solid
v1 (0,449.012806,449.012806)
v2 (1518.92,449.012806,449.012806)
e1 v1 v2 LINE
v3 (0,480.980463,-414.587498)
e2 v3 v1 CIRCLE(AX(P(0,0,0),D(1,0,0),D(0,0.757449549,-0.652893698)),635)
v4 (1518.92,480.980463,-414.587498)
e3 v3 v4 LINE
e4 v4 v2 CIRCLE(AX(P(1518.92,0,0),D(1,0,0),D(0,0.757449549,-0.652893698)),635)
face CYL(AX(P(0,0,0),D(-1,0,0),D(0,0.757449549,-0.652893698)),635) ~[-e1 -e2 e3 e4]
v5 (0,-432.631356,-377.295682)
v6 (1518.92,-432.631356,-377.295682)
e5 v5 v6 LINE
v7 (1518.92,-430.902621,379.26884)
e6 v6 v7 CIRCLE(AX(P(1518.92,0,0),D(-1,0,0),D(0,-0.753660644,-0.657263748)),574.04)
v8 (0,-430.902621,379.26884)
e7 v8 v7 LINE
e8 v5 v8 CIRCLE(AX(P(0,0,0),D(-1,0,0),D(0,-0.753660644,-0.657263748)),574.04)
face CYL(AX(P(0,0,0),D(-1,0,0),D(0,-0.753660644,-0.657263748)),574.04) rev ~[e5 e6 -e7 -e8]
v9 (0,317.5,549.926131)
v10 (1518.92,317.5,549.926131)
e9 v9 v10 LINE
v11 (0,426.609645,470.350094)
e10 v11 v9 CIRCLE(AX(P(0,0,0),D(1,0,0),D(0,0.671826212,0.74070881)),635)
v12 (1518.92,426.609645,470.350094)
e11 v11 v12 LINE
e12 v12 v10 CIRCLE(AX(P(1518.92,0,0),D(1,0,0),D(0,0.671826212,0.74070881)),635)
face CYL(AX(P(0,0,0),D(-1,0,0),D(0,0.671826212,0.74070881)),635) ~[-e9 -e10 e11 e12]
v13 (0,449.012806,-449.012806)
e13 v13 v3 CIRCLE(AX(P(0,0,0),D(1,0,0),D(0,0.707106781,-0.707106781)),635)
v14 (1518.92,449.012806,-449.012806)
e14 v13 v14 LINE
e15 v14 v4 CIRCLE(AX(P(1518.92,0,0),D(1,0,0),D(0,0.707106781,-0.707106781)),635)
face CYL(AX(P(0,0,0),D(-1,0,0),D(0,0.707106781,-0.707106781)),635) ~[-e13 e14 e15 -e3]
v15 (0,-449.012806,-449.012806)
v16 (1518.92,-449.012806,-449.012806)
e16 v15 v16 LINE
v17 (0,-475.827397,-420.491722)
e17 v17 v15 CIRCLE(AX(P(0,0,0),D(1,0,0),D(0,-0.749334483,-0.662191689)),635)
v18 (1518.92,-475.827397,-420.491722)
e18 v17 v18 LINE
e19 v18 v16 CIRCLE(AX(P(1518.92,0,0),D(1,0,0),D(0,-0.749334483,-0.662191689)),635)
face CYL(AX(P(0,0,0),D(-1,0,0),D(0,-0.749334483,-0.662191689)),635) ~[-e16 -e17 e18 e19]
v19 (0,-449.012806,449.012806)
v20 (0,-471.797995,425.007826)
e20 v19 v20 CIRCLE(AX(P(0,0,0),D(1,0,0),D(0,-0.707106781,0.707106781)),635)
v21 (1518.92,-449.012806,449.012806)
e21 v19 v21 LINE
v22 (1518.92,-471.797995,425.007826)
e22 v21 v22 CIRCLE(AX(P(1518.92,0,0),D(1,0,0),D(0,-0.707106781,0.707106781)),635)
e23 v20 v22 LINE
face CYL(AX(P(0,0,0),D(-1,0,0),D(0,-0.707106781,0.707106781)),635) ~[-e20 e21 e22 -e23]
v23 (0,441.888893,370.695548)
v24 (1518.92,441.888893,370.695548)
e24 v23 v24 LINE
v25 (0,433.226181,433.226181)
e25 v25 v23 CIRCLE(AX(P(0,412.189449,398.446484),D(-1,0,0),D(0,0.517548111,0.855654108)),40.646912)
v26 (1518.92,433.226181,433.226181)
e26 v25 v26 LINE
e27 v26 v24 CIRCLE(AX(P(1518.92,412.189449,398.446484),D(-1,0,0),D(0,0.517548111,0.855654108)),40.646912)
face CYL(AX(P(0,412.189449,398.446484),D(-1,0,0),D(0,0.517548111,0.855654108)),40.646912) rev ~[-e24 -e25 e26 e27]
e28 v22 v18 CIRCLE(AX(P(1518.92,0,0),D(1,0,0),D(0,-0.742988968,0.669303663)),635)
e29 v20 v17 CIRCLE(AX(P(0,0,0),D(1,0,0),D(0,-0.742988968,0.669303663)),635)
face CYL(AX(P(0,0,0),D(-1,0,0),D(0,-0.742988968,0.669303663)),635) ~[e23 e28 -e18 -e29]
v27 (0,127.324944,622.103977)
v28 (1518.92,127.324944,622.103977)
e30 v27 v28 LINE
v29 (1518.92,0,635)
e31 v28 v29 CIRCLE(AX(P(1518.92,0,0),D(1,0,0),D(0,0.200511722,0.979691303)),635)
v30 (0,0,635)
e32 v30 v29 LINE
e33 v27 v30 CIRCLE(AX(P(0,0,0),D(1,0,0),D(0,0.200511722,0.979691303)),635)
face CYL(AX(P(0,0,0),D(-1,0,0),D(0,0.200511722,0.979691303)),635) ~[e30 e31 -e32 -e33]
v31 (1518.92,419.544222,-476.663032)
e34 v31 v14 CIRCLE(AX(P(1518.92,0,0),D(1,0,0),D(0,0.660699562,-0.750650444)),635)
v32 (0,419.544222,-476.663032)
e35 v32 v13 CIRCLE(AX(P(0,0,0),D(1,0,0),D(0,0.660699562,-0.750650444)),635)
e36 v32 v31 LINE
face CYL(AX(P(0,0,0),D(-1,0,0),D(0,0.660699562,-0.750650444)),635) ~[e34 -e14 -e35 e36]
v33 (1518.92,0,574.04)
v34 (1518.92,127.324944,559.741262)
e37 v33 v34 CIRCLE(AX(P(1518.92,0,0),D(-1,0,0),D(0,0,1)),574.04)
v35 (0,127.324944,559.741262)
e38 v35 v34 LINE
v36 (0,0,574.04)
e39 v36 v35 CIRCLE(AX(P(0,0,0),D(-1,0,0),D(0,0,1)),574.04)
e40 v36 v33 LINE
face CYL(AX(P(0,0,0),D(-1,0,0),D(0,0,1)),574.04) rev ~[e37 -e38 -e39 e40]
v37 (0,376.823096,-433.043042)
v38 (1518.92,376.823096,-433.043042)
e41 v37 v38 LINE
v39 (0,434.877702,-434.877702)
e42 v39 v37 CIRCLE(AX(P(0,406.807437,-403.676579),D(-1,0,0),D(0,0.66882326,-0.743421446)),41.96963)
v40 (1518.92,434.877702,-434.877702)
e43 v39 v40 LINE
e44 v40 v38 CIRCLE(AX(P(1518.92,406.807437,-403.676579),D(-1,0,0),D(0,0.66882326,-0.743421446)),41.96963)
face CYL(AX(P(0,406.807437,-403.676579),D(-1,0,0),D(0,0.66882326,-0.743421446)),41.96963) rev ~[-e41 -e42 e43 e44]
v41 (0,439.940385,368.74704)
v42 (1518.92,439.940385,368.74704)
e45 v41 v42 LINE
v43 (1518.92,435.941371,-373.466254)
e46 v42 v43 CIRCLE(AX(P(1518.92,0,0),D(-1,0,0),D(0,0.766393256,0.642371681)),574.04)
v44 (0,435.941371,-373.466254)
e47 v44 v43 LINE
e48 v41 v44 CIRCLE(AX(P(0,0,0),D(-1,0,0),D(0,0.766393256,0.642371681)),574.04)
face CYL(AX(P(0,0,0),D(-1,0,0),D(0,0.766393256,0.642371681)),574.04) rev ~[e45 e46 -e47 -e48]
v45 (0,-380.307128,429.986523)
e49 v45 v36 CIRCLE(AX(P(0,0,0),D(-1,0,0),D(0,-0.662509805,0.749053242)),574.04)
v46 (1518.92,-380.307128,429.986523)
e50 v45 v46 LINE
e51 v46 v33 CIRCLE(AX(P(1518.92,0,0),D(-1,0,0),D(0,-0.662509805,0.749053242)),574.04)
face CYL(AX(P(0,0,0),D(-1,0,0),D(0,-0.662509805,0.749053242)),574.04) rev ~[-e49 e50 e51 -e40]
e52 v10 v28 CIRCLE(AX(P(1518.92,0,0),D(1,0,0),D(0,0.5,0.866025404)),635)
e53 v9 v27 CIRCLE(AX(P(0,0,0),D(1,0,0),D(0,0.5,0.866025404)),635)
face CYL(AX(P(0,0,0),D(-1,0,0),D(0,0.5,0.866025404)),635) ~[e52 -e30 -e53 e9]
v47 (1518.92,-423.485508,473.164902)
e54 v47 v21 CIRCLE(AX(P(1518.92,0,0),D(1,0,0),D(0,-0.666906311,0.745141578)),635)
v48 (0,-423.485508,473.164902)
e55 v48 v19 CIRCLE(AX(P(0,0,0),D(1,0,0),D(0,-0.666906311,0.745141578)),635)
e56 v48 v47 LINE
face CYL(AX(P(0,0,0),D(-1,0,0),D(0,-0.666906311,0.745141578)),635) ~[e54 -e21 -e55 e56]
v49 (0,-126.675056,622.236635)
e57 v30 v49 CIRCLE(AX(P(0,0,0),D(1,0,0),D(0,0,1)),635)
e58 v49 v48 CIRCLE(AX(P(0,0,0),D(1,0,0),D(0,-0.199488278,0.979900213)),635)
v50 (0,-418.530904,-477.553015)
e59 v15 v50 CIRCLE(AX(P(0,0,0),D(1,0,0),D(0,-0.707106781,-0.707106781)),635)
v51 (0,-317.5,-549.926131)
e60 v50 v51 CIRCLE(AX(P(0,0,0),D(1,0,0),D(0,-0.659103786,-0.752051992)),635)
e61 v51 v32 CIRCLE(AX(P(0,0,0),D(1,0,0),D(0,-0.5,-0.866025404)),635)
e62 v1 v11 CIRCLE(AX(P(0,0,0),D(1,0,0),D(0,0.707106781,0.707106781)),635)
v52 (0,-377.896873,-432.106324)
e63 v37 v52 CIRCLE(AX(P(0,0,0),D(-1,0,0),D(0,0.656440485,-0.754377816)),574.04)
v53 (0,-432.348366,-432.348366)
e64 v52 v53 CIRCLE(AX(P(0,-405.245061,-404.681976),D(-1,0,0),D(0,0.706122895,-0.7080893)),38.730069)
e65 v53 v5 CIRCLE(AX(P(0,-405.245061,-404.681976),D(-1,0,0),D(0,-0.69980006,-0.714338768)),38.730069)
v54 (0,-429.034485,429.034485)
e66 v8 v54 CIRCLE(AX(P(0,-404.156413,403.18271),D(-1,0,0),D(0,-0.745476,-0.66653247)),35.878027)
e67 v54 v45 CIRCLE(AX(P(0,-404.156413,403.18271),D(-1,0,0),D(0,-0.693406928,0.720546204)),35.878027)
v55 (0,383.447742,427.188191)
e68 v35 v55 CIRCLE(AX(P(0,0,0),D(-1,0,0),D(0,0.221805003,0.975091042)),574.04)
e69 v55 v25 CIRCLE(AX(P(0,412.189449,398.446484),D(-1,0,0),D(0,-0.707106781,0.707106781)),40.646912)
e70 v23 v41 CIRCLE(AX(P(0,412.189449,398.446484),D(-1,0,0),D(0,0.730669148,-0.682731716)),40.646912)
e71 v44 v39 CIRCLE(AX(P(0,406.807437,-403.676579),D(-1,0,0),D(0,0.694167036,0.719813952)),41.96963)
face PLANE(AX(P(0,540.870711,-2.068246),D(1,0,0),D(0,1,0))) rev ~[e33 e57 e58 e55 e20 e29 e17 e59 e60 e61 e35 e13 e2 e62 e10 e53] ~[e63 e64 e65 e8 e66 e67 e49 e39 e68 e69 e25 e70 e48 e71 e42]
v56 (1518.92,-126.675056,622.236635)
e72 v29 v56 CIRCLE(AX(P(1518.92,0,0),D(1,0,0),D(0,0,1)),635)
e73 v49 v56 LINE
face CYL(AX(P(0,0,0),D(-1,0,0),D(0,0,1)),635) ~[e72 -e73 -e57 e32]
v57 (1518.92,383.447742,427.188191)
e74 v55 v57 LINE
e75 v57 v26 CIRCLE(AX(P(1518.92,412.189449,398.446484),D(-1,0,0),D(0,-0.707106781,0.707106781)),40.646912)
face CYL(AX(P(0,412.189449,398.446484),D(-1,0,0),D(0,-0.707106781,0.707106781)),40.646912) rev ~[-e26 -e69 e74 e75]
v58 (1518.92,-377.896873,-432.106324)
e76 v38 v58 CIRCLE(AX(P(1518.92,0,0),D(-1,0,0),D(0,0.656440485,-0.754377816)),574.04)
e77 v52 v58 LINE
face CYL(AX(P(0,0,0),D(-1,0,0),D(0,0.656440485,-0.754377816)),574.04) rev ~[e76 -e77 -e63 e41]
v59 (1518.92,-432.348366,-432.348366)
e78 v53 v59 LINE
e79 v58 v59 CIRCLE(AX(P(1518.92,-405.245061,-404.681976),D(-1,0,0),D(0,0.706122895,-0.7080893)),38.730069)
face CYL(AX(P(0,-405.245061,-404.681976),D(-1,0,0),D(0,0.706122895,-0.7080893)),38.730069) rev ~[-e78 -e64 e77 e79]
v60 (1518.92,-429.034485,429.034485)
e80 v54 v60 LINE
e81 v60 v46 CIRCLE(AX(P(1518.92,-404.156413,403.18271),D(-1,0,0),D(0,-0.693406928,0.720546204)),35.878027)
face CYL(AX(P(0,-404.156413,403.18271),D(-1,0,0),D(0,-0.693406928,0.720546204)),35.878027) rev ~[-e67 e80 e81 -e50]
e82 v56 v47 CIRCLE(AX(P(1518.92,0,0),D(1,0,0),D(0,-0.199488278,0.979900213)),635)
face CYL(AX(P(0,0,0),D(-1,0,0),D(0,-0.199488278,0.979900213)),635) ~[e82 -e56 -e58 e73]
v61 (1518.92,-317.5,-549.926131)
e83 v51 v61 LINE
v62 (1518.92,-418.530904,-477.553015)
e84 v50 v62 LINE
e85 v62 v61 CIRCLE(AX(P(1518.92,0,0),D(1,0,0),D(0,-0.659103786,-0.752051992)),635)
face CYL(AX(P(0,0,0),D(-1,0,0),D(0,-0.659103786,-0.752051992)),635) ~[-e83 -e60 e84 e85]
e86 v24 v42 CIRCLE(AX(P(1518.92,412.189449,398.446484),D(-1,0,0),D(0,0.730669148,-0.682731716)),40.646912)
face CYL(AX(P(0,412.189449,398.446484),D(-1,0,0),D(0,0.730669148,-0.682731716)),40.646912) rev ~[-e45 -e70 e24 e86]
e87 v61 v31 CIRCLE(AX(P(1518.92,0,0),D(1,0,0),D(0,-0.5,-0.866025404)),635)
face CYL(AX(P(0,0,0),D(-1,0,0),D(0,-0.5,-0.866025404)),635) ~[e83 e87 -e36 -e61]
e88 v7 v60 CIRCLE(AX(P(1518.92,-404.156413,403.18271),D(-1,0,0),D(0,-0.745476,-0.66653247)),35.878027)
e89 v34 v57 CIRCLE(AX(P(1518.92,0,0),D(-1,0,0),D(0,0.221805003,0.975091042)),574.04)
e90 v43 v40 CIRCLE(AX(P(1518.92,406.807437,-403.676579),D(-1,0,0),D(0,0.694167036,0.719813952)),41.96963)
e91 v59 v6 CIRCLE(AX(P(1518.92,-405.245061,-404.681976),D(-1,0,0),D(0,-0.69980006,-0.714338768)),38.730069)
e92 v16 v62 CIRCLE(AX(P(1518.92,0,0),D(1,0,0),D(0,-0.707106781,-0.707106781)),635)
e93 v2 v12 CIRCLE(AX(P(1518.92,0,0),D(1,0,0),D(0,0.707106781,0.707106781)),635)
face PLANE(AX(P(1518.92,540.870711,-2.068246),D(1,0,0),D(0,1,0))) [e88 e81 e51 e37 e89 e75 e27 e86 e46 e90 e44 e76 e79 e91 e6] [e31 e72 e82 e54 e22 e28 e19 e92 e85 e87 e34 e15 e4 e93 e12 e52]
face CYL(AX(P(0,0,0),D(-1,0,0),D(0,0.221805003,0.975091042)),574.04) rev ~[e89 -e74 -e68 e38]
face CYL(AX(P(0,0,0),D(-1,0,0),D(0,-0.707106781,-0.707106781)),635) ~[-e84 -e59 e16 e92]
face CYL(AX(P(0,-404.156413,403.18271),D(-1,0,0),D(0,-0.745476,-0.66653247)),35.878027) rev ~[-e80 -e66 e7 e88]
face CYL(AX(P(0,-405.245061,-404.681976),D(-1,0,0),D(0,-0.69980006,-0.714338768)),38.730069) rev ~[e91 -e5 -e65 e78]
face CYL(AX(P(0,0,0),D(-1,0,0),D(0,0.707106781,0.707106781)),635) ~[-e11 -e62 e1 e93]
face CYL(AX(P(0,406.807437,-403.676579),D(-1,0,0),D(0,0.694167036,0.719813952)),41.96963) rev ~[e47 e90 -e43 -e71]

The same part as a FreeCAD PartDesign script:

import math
import FreeCAD as App
import Part
import Sketcher
Q = App.Units.Quantity

doc = App.newDocument("Part")
body = doc.addObject("PartDesign::Body", "Body")

# Sketch on YZ plane
sketch1 = body.newObject("Sketcher::SketchObject", "Sketch")
sketch1.AttachmentSupport = (doc.getObject("YZ_Plane"), [""])
sketch1.MapMode = "FlatFace"
sketch1.addGeometry(Part.ArcOfCircle(Part.Circle(App.Vector(0, 0, 0), App.Vector(0, 0, 1), 635), math.radians(-41), math.radians(45)), False)
sketch1.addGeometry(Part.ArcOfCircle(Part.Circle(App.Vector(0, 0, 0), App.Vector(0, 0, 1), 635), math.radians(45), math.radians(47.79)), False)
sketch1.addGeometry(Part.ArcOfCircle(Part.Circle(App.Vector(0, 0, 0), App.Vector(0, 0, 1), 635), math.radians(47.79), math.radians(60)), False)
sketch1.addGeometry(Part.ArcOfCircle(Part.Circle(App.Vector(0, 0, 0), App.Vector(0, 0, 1), 635), math.radians(60), math.radians(78.43)), False)
sketch1.addGeometry(Part.ArcOfCircle(Part.Circle(App.Vector(0, 0, 0), App.Vector(0, 0, 1), 635), math.radians(78.43), math.radians(90)), False)
sketch1.addGeometry(Part.ArcOfCircle(Part.Circle(App.Vector(0, 0, 0), App.Vector(0, 0, 1), 635), math.radians(90), math.radians(101.51)), False)
sketch1.addGeometry(Part.ArcOfCircle(Part.Circle(App.Vector(0, 0, 0), App.Vector(0, 0, 1), 635), math.radians(102), math.radians(132)), False)
sketch1.addGeometry(Part.ArcOfCircle(Part.Circle(App.Vector(0, 0, 0), App.Vector(0, 0, 1), 635), math.radians(131.83), math.radians(135)), False)
sketch1.addGeometry(Part.ArcOfCircle(Part.Circle(App.Vector(0, 0, 0), App.Vector(0, 0, 1), 635), math.radians(135), math.radians(137.99)), False)
sketch1.addGeometry(Part.ArcOfCircle(Part.Circle(App.Vector(0, 0, 0), App.Vector(0, 0, 1), 635), math.radians(138), math.radians(221)), False)
sketch1.addGeometry(Part.ArcOfCircle(Part.Circle(App.Vector(0, 0, 0), App.Vector(0, 0, 1), 635), math.radians(-138.53), math.radians(-135)), False)
sketch1.addGeometry(Part.ArcOfCircle(Part.Circle(App.Vector(0, 0, 0), App.Vector(0, 0, 1), 635), math.radians(-135), math.radians(-131.23)), False)
sketch1.addGeometry(Part.ArcOfCircle(Part.Circle(App.Vector(0, 0, 0), App.Vector(0, 0, 1), 635), math.radians(-131.23), math.radians(-120)), False)
sketch1.addGeometry(Part.ArcOfCircle(Part.Circle(App.Vector(0, 0, 0), App.Vector(0, 0, 1), 635), math.radians(-120), math.radians(-49)), False)
sketch1.addGeometry(Part.ArcOfCircle(Part.Circle(App.Vector(0, 0, 0), App.Vector(0, 0, 1), 635), math.radians(-48.65), math.radians(-45)), False)
sketch1.addGeometry(Part.ArcOfCircle(Part.Circle(App.Vector(0, 0, 0), App.Vector(0, 0, 1), 635), math.radians(-45), math.radians(-40.76)), False)
sketch1.addGeometry(Part.ArcOfCircle(Part.Circle(App.Vector(-404.2, 403.2, 0), App.Vector(0, 0, 1), 35.9), math.radians(48), math.radians(134)), False)
sketch1.addGeometry(Part.ArcOfCircle(Part.Circle(App.Vector(0, 0, 0), App.Vector(0, 0, 1), 574), math.radians(90), math.radians(131)), False)
sketch1.addGeometry(Part.ArcOfCircle(Part.Circle(App.Vector(0, 0, 0), App.Vector(0, 0, 1), 574), math.radians(77.18), math.radians(90)), False)
sketch1.addGeometry(Part.ArcOfCircle(Part.Circle(App.Vector(0, 0, 0), App.Vector(0, 0, 1), 574), math.radians(48), math.radians(77)), False)
sketch1.addGeometry(Part.ArcOfCircle(Part.Circle(App.Vector(412.2, 398.4, 0), App.Vector(0, 0, 1), 40.6), math.radians(59), math.radians(135)), False)
sketch1.addGeometry(Part.ArcOfCircle(Part.Circle(App.Vector(412.2, 398.4, 0), App.Vector(0, 0, 1), 40.6), math.radians(-43), math.radians(59)), False)
sketch1.addGeometry(Part.ArcOfCircle(Part.Circle(App.Vector(412.2, 398.4, 0), App.Vector(0, 0, 1), 40.6), math.radians(-46.94), math.radians(-43.06)), False)
sketch1.addGeometry(Part.ArcOfCircle(Part.Circle(App.Vector(0, 0, 0), App.Vector(0, 0, 1), 574), math.radians(-41), math.radians(40)), False)
sketch1.addGeometry(Part.ArcOfCircle(Part.Circle(App.Vector(406.8, -403.7, 0), App.Vector(0, 0, 1), 42), math.radians(-48), math.radians(46)), False)
sketch1.addGeometry(Part.ArcOfCircle(Part.Circle(App.Vector(406.8, -403.7, 0), App.Vector(0, 0, 1), 42), math.radians(-136), math.radians(-48)), False)
sketch1.addGeometry(Part.ArcOfCircle(Part.Circle(App.Vector(0, 0, 0), App.Vector(0, 0, 1), 574), math.radians(-131), math.radians(-49)), False)
sketch1.addGeometry(Part.ArcOfCircle(Part.Circle(App.Vector(-405.2, -404.7, 0), App.Vector(0, 0, 1), 38.7), math.radians(-134), math.radians(-45)), False)
sketch1.addGeometry(Part.ArcOfCircle(Part.Circle(App.Vector(-405.2, -404.7, 0), App.Vector(0, 0, 1), 38.7), math.radians(135), math.radians(226)), False)
sketch1.addGeometry(Part.ArcOfCircle(Part.Circle(App.Vector(0, 0, 0), App.Vector(0, 0, 1), 574), math.radians(139), math.radians(221)), False)
sketch1.addGeometry(Part.ArcOfCircle(Part.Circle(App.Vector(-404.2, 403.2, 0), App.Vector(0, 0, 1), 35.9), math.radians(134), math.radians(222)), False)
sketch1.addConstraint(Sketcher.Constraint("Coincident", 0, 2, 1, 1))
sketch1.addConstraint(Sketcher.Constraint("Coincident", 1, 2, 2, 1))
sketch1.addConstraint(Sketcher.Constraint("Coincident", 2, 2, 3, 1))
sketch1.addConstraint(Sketcher.Constraint("Coincident", 3, 2, 4, 1))
sketch1.addConstraint(Sketcher.Constraint("Coincident", 4, 2, 5, 1))
sketch1.addConstraint(Sketcher.Constraint("Coincident", 5, 2, 6, 1))
sketch1.addConstraint(Sketcher.Constraint("Coincident", 6, 2, 7, 1))
sketch1.addConstraint(Sketcher.Constraint("Coincident", 7, 2, 8, 1))
sketch1.addConstraint(Sketcher.Constraint("Coincident", 8, 2, 9, 1))
sketch1.addConstraint(Sketcher.Constraint("Coincident", 9, 2, 10, 1))
sketch1.addConstraint(Sketcher.Constraint("Coincident", 10, 2, 11, 1))
sketch1.addConstraint(Sketcher.Constraint("Coincident", 11, 2, 12, 1))
sketch1.addConstraint(Sketcher.Constraint("Coincident", 12, 2, 13, 1))
sketch1.addConstraint(Sketcher.Constraint("Coincident", 13, 2, 14, 1))
sketch1.addConstraint(Sketcher.Constraint("Coincident", 14, 2, 15, 1))
sketch1.addConstraint(Sketcher.Constraint("Coincident", 15, 2, 0, 1))
sketch1.addConstraint(Sketcher.Constraint("Coincident", 16, 1, 17, 2))
sketch1.addConstraint(Sketcher.Constraint("Coincident", 17, 1, 18, 2))
sketch1.addConstraint(Sketcher.Constraint("Coincident", 18, 1, 19, 2))
sketch1.addConstraint(Sketcher.Constraint("Coincident", 19, 1, 20, 2))
sketch1.addConstraint(Sketcher.Constraint("Tangent", 20, 1, 21, 2))
sketch1.addConstraint(Sketcher.Constraint("Tangent", 21, 1, 22, 2))
sketch1.addConstraint(Sketcher.Constraint("Coincident", 22, 1, 23, 2))
sketch1.addConstraint(Sketcher.Constraint("Coincident", 23, 1, 24, 2))
sketch1.addConstraint(Sketcher.Constraint("Tangent", 24, 1, 25, 2))
sketch1.addConstraint(Sketcher.Constraint("Coincident", 25, 1, 26, 2))
sketch1.addConstraint(Sketcher.Constraint("Coincident", 26, 1, 27, 2))
sketch1.addConstraint(Sketcher.Constraint("Tangent", 27, 1, 28, 2))
sketch1.addConstraint(Sketcher.Constraint("Coincident", 28, 1, 29, 2))
sketch1.addConstraint(Sketcher.Constraint("Coincident", 29, 1, 30, 2))
sketch1.addConstraint(Sketcher.Constraint("Tangent", 30, 1, 16, 2))
sketch1.addConstraint(Sketcher.Constraint("Coincident", 0, 3, -1, 1))
sketch1.addConstraint(Sketcher.Constraint("Coincident", 1, 3, -1, 1))
sketch1.addConstraint(Sketcher.Constraint("Coincident", 2, 3, -1, 1))
sketch1.addConstraint(Sketcher.Constraint("Coincident", 3, 3, -1, 1))
sketch1.addConstraint(Sketcher.Constraint("Coincident", 4, 3, -1, 1))
sketch1.addConstraint(Sketcher.Constraint("Coincident", 5, 3, -1, 1))
sketch1.addConstraint(Sketcher.Constraint("Coincident", 6, 3, -1, 1))
sketch1.addConstraint(Sketcher.Constraint("Coincident", 7, 3, -1, 1))
sketch1.addConstraint(Sketcher.Constraint("Coincident", 8, 3, -1, 1))
sketch1.addConstraint(Sketcher.Constraint("Coincident", 9, 3, -1, 1))
sketch1.addConstraint(Sketcher.Constraint("Coincident", 10, 3, -1, 1))
sketch1.addConstraint(Sketcher.Constraint("Coincident", 11, 3, -1, 1))
sketch1.addConstraint(Sketcher.Constraint("Coincident", 12, 3, -1, 1))
sketch1.addConstraint(Sketcher.Constraint("Coincident", 13, 3, -1, 1))
sketch1.addConstraint(Sketcher.Constraint("Coincident", 14, 3, -1, 1))
sketch1.addConstraint(Sketcher.Constraint("Coincident", 17, 3, -1, 1))
sketch1.addConstraint(Sketcher.Constraint("Coincident", 18, 3, -1, 1))
sketch1.addConstraint(Sketcher.Constraint("Coincident", 19, 3, -1, 1))
sketch1.addConstraint(Sketcher.Constraint("Coincident", 23, 3, -1, 1))
sketch1.addConstraint(Sketcher.Constraint("Coincident", 26, 3, -1, 1))
sketch1.addConstraint(Sketcher.Constraint("Coincident", 29, 3, -1, 1))
sketch1.addConstraint(Sketcher.Constraint("Coincident", 22, 3, 20, 3))
sketch1.addConstraint(Sketcher.Constraint("Equal", 14, 15))
sketch1.addConstraint(Sketcher.Constraint("Equal", 19, 23))
sketch1.addConstraint(Sketcher.Constraint("Equal", 24, 25))
sketch1.addConstraint(Sketcher.Constraint("Equal", 23, 26))
sketch1.addConstraint(Sketcher.Constraint("Equal", 27, 28))
sketch1.addConstraint(Sketcher.Constraint("Equal", 26, 29))
sketch1.addConstraint(Sketcher.Constraint("Equal", 16, 30))
sketch1.addConstraint(Sketcher.Constraint("PointOnObject", 4, 2, -2))
sketch1.addConstraint(Sketcher.Constraint("PointOnObject", 17, 1, -2))
sketch1.addConstraint(Sketcher.Constraint("Horizontal", 0, 2, 7, 2))
sketch1.addConstraint(Sketcher.Constraint("Horizontal", 10, 2, 14, 2))
sketch1.addConstraint(Sketcher.Constraint("Vertical", 7, 2, 10, 2))
sketch1.addConstraint(Sketcher.Constraint("Vertical", 3, 2, 18, 1))
sketch1.addConstraint(Sketcher.Constraint("Radius", 0, Q("25 in")))
sketch1.addConstraint(Sketcher.Constraint("Radius", 17, Q("22.6 in")))
sketch1.addConstraint(Sketcher.Constraint("DistanceX", -1, 1, 2, 2, Q("12.5 in")))
sketch1.addConstraint(Sketcher.Constraint("DistanceX", 12, 2, -1, 1, Q("12.5 in")))
sketch1.addConstraint(Sketcher.Constraint("Radius", 20, Q("40.646912 mm")))
sketch1.addConstraint(Sketcher.Constraint("Radius", 24, Q("41.96963 mm")))
sketch1.addConstraint(Sketcher.Constraint("Radius", 27, Q("38.730069 mm")))
sketch1.addConstraint(Sketcher.Constraint("DistanceY", 11, 2, -1, 1, Q("18.8012998 in")))
sketch1.addConstraint(Sketcher.Constraint("DistanceY", -1, 1, 22, 1, Q("14.5176 in")))
sketch1.addConstraint(Sketcher.Constraint("Radius", 16, Q("35.878027 mm")))
sketch1.addConstraint(Sketcher.Constraint("DistanceY", 15, 2, -1, 1, Q("414.587498 mm")))
sketch1.addConstraint(Sketcher.Constraint("DistanceY", -1, 1, 16, 3, Q("403.18271 mm")))
sketch1.addConstraint(Sketcher.Constraint("DistanceX", -1, 1, 20, 3, Q("412.189449 mm")))
sketch1.addConstraint(Sketcher.Constraint("DistanceY", 24, 3, -1, 1, Q("403.676579 mm")))
sketch1.addConstraint(Sketcher.Constraint("DistanceX", 27, 3, -1, 1, Q("405.245061 mm")))
sketch1.addConstraint(Sketcher.Constraint("DistanceX", -1, 1, 13, 2, Q("419.544222 mm")))
sketch1.addConstraint(Sketcher.Constraint("DistanceX", 16, 1, -1, 1, Q("380.307128 mm")))
sketch1.addConstraint(Sketcher.Constraint("DistanceY", -1, 1, 18, 1, Q("559.741262 mm")))
sketch1.addConstraint(Sketcher.Constraint("DistanceX", -1, 1, 20, 1, Q("433.226181 mm")))
sketch1.addConstraint(Sketcher.Constraint("DistanceY", -1, 1, 21, 1, Q("370.695548 mm")))
sketch1.addConstraint(Sketcher.Constraint("DistanceY", 25, 1, -1, 1, Q("433.043042 mm")))
sketch1.addConstraint(Sketcher.Constraint("DistanceY", 28, 1, -1, 1, Q("377.295682 mm")))
sketch1.addConstraint(Sketcher.Constraint("DistanceX", -1, 1, 0, 2, Q("449.012806 mm")))
sketch1.addConstraint(Sketcher.Constraint("DistanceX", -1, 1, 1, 2, Q("426.609645 mm")))
sketch1.addConstraint(Sketcher.Constraint("DistanceX", 5, 2, -1, 1, Q("126.675056 mm")))
sketch1.addConstraint(Sketcher.Constraint("DistanceX", 6, 2, -1, 1, Q("423.485508 mm")))
sketch1.addConstraint(Sketcher.Constraint("DistanceX", 8, 2, -1, 1, Q("471.797995 mm")))
sketch1.addConstraint(Sketcher.Constraint("DistanceX", 9, 2, -1, 1, Q("475.827397 mm")))
sketch1.addConstraint(Sketcher.Constraint("DistanceX", -1, 1, 24, 1, Q("434.877702 mm")))
sketch1.addConstraint(Sketcher.Constraint("DistanceX", 27, 1, -1, 1, Q("432.348366 mm")))
sketch1.addConstraint(Sketcher.Constraint("DistanceX", 30, 1, -1, 1, Q("429.034485 mm")))
pad1 = body.newObject("PartDesign::Pad", "Pad")
pad1.Profile = sketch1
pad1.Length = Q("59.8 in")

doc.recompute()
